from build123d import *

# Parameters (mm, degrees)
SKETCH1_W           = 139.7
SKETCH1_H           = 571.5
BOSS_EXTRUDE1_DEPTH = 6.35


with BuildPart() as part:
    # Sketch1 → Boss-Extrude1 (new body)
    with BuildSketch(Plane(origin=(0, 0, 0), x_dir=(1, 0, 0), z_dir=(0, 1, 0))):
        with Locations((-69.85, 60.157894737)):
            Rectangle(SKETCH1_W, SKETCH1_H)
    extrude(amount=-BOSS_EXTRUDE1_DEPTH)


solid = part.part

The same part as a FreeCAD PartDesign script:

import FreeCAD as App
import Part
import Sketcher
from FreeCAD import Vector
Q = App.Units.Quantity

doc = App.newDocument("Part")
body = doc.addObject("PartDesign::Body", "Body")

# Sketch on XZ plane
sketch1 = doc.addObject("Sketcher::SketchObject", "Sketch")
body.addObject(sketch1)
sketch1.AttachmentSupport = (doc.XZ_Plane, [""])
sketch1.MapMode = "FlatFace"
sketch1.addGeometry([
    Part.LineSegment(Vector(-140, -346, 0), Vector(-140, 226, 0)),
    Part.LineSegment(Vector(-140, 226, 0), Vector(0, 226, 0)),
    Part.LineSegment(Vector(0, 226, 0), Vector(0, -346, 0)),
    Part.LineSegment(Vector(0, -346, 0), Vector(-140, -346, 0)),
], False)
sketch1.addConstraint([
    Sketcher.Constraint("Coincident", 0, 2, 1, 1),
    Sketcher.Constraint("Coincident", 1, 2, 2, 1),
    Sketcher.Constraint("Coincident", 2, 2, 3, 1),
    Sketcher.Constraint("Coincident", 3, 2, 0, 1),
    Sketcher.Constraint("Vertical", 0),
    Sketcher.Constraint("Horizontal", 1),
    Sketcher.Constraint("Vertical", 2),
    Sketcher.Constraint("Horizontal", 3),
    Sketcher.Constraint("PointOnObject", 1, 2, -2),
    Sketcher.Constraint("DistanceX", 1, 1, 1, 2, Q("5.5 in")),
    Sketcher.Constraint("DistanceY", 0, 1, 0, 2, Q("22.5 in")),
    Sketcher.Constraint("DistanceY", -1, 1, 0, 2, Q("225.592105 mm")),
])
pad1 = doc.addObject("PartDesign::Pad", "Pad")
body.addObject(pad1)
pad1.Profile = sketch1
pad1.Length = Q("0.25 in")

doc.recompute()
